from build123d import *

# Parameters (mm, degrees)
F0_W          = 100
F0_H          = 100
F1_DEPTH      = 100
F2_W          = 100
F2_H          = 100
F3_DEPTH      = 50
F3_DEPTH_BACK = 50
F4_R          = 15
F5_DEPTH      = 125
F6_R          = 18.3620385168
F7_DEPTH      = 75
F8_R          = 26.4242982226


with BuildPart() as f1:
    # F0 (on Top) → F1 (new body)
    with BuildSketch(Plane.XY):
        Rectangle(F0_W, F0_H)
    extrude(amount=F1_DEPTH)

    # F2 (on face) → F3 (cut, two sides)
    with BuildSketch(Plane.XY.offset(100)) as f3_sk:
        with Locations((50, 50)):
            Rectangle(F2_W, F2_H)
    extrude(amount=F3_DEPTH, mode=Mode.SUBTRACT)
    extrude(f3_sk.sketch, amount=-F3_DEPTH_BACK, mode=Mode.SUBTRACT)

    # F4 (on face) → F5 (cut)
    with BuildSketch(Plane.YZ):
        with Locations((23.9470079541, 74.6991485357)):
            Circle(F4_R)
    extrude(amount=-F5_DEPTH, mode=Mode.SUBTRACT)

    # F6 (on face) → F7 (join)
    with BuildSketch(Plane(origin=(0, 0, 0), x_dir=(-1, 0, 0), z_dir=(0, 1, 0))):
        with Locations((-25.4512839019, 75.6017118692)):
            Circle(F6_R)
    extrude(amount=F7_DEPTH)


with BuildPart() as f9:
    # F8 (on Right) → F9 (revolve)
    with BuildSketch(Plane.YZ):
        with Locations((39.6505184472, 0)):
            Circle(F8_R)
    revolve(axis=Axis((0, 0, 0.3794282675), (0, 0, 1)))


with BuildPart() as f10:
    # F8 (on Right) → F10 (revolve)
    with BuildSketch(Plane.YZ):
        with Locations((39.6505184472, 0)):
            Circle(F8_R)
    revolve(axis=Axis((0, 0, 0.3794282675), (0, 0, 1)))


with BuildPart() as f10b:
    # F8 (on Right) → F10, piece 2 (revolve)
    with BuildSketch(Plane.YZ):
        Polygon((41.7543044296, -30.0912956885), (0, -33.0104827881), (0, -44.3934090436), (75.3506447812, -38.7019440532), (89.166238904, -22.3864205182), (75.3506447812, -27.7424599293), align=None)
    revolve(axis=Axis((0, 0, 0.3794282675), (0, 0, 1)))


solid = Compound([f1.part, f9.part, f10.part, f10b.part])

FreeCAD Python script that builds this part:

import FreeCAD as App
import Part
import Sketcher

V = App.Vector
Q = App.Units.Quantity


def add_polygon(sketch, points):
    """Adds a closed chain of lines whose ends are joined by coincident constraints."""
    first, n = sketch.GeometryCount, len(points)
    for a, b in zip(points, points[1:] + points[:1]):
        sketch.addGeometry(Part.LineSegment(App.Vector(*a, 0), App.Vector(*b, 0)), False)
    for i in range(n):
        sketch.addConstraint(Sketcher.Constraint("Coincident", first + i, 2, first + (i + 1) % n, 1))

doc = App.newDocument("Part")
body = doc.addObject("PartDesign::Body", "Body")

# Sketch on XY plane
sketch1 = body.newObject("Sketcher::SketchObject", "Sketch")
sketch1.AttachmentSupport = (doc.getObject("XY_Plane"), [""])
sketch1.MapMode = "FlatFace"
add_polygon(sketch1, [(-50, 50), (-50, -50), (50, -50), (50, 50)])  # lines 0-3
sketch1.addConstraint(Sketcher.Constraint("Vertical", 0))
sketch1.addConstraint(Sketcher.Constraint("Horizontal", 1))
sketch1.addConstraint(Sketcher.Constraint("Vertical", 2))
sketch1.addConstraint(Sketcher.Constraint("Horizontal", 3))
sketch1.addConstraint(Sketcher.Constraint("Symmetric", 0, 2, 2, 2, -1, 1))
sketch1.addConstraint(Sketcher.Constraint("Equal", 3, 0))
sketch1.addConstraint(Sketcher.Constraint("DistanceX", 1, 1, 1, 2, Q("100 mm")))
pad1 = body.newObject("PartDesign::Pad", "Pad")
pad1.Profile = sketch1
pad1.Length = 100

# Sketch on XY plane
sketch2 = body.newObject("Sketcher::SketchObject", "Sketch001")
sketch2.AttachmentSupport = (doc.getObject("XY_Plane"), [""])
sketch2.MapMode = "FlatFace"
sketch2.AttachmentOffset = App.Placement(V(0, 0, 100), App.Rotation())
add_polygon(sketch2, [(0, 100), (0, 0), (100, 0), (100, 100)])  # lines 0-3
sketch2.addConstraint(Sketcher.Constraint("Vertical", 0))
sketch2.addConstraint(Sketcher.Constraint("Horizontal", 1))
sketch2.addConstraint(Sketcher.Constraint("Vertical", 2))
sketch2.addConstraint(Sketcher.Constraint("Horizontal", 3))
sketch2.addConstraint(Sketcher.Constraint("Coincident", 0, 2, -1, 1))
sketch2.addConstraint(Sketcher.Constraint("Equal", 3, 0))
sketch2.addConstraint(Sketcher.Constraint("DistanceX", 1, 1, 1, 2, Q("100 mm")))
pocket1 = body.newObject("PartDesign::Pocket", "Pocket")
pocket1.Profile = sketch2
pocket1.Type = "TwoLengths"
pocket1.Length = 50
pocket1.Length2 = 50
pocket1.Reversed = True

# Sketch on YZ plane
sketch3 = body.newObject("Sketcher::SketchObject", "Sketch002")
sketch3.AttachmentSupport = (doc.getObject("YZ_Plane"), [""])
sketch3.MapMode = "FlatFace"
sketch3.addGeometry(Part.Circle(V(24, 75, 0), V(0, 0, 1), 15), False)
sketch3.addConstraint(Sketcher.Constraint("Diameter", 0, Q("30 mm")))
sketch3.addConstraint(Sketcher.Constraint("DistanceY", -1, 1, 0, 3, Q("74.699149 mm")))
sketch3.addConstraint(Sketcher.Constraint("DistanceX", -1, 1, 0, 3, Q("23.947008 mm")))
pocket2 = body.newObject("PartDesign::Pocket", "Pocket001")
pocket2.Profile = sketch3
pocket2.Length = 125

# Sketch on XZ plane
sketch4 = body.newObject("Sketcher::SketchObject", "Sketch003")
sketch4.AttachmentSupport = (doc.getObject("XZ_Plane"), [""])
sketch4.MapMode = "FlatFace"
sketch4.addGeometry(Part.Circle(V(25, 76, 0), V(0, 0, 1), 18), False)
sketch4.addConstraint(Sketcher.Constraint("Diameter", 0, Q("36.724077 mm")))
sketch4.addConstraint(Sketcher.Constraint("DistanceY", -1, 1, 0, 3, Q("75.601712 mm")))
sketch4.addConstraint(Sketcher.Constraint("DistanceX", -1, 1, 0, 3, Q("25.451284 mm")))
pad2 = body.newObject("PartDesign::Pad", "Pad001")
pad2.Profile = sketch4
pad2.Length = 75
pad2.Reversed = True
body2 = doc.addObject("PartDesign::Body", "Body001")

# Sketch on YZ plane
sketch5 = body2.newObject("Sketcher::SketchObject", "Sketch004")
sketch5.AttachmentSupport = (doc.getObject("YZ_Plane001"), [""])
sketch5.MapMode = "FlatFace"
sketch5.addGeometry(Part.Circle(V(40, 0, 0), V(0, 0, 1), 26), False)
sketch5.addConstraint(Sketcher.Constraint("PointOnObject", 0, 3, -1))
sketch5.addConstraint(Sketcher.Constraint("Diameter", 0, Q("52.848596 mm")))
sketch5.addConstraint(Sketcher.Constraint("DistanceX", -1, 1, 0, 3, Q("39.650518 mm")))
revolution = body2.newObject("PartDesign::Revolution", "Revolution")
revolution.Profile = sketch5
revolution.ReferenceAxis = (sketch5, ["V_Axis"])
revolution.Angle = 360
body3 = doc.addObject("PartDesign::Body", "Body002")

# Sketch on YZ plane
sketch6 = body3.newObject("Sketcher::SketchObject", "Sketch005")
sketch6.AttachmentSupport = (doc.getObject("YZ_Plane002"), [""])
sketch6.MapMode = "FlatFace"
sketch6.addGeometry(Part.Circle(V(40, 0, 0), V(0, 0, 1), 26), False)
sketch6.addConstraint(Sketcher.Constraint("PointOnObject", 0, 3, -1))
sketch6.addConstraint(Sketcher.Constraint("Diameter", 0, Q("52.848596 mm")))
sketch6.addConstraint(Sketcher.Constraint("DistanceX", -1, 1, 0, 3, Q("39.650518 mm")))
revolution2 = body3.newObject("PartDesign::Revolution", "Revolution001")
revolution2.Profile = sketch6
revolution2.ReferenceAxis = (sketch6, ["V_Axis"])
revolution2.Angle = 360
body4 = doc.addObject("PartDesign::Body", "Body003")

# Sketch on YZ plane
sketch7 = body4.newObject("Sketcher::SketchObject", "Sketch006")
sketch7.AttachmentSupport = (doc.getObject("YZ_Plane003"), [""])
sketch7.MapMode = "FlatFace"
add_polygon(sketch7, [(42, -30), (0, -33), (0, -44), (75, -39), (89, -22), (75, -28)])  # lines 0-5
sketch7.addConstraint(Sketcher.Constraint("Vertical", 1))
sketch7.addConstraint(Sketcher.Constraint("PointOnObject", 0, 2, -2))
sketch7.addConstraint(Sketcher.Constraint("Parallel", 0, 5))
sketch7.addConstraint(Sketcher.Constraint("Vertical", 2, 2, 4, 2))
sketch7.addConstraint(Sketcher.Constraint("DistanceY", 1, 2, 1, 1, Q("11.382926 mm")))
sketch7.addConstraint(Sketcher.Constraint("DistanceY", 1, 2, -1, 1, Q("44.393409 mm")))
sketch7.addConstraint(Sketcher.Constraint("DistanceX", -1, 1, 3, 2, Q("89.166239 mm")))
sketch7.addConstraint(Sketcher.Constraint("DistanceY", 3, 2, -1, 1, Q("22.386421 mm")))
sketch7.addConstraint(Sketcher.Constraint("DistanceY", 4, 2, -1, 1, Q("27.74246 mm")))
sketch7.addConstraint(Sketcher.Constraint("DistanceY", 2, 2, 0, 2, Q("5.691461 mm")))
sketch7.addConstraint(Sketcher.Constraint("DistanceX", 5, 2, 4, 2, Q("33.59634 mm")))
sketch7.addConstraint(Sketcher.Constraint("DistanceY", 2, 2, 5, 2, Q("8.610648 mm")))
revolution3 = body4.newObject("PartDesign::Revolution", "Revolution002")
revolution3.Profile = sketch7
revolution3.ReferenceAxis = (sketch7, ["V_Axis"])
revolution3.Angle = 360

doc.recompute()
